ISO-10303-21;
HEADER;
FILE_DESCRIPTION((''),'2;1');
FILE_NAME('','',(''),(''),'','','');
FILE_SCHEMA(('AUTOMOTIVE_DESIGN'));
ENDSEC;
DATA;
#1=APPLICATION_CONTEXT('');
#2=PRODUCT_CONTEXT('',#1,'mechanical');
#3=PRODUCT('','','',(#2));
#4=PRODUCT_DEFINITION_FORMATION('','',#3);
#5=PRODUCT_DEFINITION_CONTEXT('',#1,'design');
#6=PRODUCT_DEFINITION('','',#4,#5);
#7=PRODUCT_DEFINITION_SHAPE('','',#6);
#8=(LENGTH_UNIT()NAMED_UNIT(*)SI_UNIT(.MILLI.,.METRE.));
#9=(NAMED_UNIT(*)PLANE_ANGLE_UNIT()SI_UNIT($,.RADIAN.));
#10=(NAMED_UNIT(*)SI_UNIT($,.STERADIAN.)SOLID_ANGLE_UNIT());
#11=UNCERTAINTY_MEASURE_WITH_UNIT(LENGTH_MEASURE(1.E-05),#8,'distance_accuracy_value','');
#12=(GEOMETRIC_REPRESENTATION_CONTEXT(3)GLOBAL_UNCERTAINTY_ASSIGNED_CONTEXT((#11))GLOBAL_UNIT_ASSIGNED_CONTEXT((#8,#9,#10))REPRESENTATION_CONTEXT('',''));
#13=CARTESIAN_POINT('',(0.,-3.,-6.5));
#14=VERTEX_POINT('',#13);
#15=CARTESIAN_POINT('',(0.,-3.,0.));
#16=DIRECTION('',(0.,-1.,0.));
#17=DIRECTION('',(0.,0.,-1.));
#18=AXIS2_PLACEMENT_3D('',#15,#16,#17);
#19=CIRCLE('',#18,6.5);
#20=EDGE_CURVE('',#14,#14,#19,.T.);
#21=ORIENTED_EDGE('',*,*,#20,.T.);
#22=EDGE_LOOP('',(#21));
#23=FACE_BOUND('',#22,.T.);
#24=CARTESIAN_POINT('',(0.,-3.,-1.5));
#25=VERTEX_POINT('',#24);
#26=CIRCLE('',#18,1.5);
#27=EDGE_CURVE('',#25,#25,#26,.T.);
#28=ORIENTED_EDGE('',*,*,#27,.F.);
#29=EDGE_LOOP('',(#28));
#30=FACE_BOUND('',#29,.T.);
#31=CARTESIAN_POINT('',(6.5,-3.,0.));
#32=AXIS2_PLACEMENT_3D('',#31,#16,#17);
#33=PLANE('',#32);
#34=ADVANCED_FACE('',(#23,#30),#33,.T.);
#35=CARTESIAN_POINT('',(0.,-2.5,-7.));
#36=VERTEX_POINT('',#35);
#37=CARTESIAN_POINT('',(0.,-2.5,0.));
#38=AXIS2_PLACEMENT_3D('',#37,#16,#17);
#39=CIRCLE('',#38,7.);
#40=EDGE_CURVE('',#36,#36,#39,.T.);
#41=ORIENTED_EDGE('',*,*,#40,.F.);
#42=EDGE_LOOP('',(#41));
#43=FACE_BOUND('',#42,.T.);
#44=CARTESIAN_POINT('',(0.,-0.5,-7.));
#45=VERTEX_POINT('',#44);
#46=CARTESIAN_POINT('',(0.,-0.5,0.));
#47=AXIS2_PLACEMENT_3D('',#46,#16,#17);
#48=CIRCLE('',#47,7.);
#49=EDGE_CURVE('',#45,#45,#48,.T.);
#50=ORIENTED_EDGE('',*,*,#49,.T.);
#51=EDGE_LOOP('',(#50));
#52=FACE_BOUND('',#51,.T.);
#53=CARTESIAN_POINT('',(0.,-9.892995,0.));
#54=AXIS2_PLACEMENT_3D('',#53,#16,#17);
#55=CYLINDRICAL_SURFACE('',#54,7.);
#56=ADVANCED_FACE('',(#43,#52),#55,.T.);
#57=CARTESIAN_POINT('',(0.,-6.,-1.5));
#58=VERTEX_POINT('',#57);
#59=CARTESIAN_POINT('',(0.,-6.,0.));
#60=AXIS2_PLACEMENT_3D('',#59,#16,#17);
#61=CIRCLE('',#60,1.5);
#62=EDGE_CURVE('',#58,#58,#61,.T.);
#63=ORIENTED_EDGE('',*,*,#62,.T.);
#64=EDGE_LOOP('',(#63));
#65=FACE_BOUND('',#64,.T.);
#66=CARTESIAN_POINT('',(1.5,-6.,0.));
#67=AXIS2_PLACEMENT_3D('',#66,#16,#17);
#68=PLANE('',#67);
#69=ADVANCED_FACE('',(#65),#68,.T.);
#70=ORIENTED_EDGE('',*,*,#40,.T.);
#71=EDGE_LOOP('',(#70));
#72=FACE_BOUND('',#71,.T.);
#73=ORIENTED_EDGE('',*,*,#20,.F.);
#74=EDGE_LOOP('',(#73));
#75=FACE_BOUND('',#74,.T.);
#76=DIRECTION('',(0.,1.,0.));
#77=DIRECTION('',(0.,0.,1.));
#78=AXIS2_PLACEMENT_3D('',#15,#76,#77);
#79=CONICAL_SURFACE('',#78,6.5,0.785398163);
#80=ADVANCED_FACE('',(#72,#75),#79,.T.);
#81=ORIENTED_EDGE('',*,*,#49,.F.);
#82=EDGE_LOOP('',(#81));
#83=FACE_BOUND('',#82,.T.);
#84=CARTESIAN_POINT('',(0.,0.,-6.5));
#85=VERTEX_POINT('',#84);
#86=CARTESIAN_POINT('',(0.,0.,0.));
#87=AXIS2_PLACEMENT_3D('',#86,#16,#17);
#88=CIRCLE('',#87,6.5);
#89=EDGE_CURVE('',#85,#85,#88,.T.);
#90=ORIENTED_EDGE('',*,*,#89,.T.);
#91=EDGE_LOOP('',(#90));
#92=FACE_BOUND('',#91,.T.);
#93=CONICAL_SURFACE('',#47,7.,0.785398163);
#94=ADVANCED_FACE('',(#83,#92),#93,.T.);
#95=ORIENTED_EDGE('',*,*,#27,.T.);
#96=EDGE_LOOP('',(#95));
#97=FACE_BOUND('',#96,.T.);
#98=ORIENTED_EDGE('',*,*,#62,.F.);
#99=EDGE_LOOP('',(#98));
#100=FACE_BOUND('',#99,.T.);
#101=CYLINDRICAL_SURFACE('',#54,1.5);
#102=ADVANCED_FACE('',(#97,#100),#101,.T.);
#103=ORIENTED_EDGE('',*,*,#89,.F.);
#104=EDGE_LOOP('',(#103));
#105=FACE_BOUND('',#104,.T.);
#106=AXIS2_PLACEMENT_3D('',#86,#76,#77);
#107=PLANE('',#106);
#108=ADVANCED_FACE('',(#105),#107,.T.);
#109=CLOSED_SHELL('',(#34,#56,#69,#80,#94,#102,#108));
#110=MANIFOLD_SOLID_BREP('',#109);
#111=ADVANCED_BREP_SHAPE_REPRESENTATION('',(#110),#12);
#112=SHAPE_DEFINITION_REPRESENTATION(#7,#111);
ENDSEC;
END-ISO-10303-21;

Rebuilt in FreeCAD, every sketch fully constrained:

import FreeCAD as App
import Part
import Sketcher

V = App.Vector
Q = App.Units.Quantity

doc = App.newDocument("Part")
body = doc.addObject("PartDesign::Body", "Body")

# Sketch on XY plane
sketch1 = doc.addObject("Sketcher::SketchObject", "Sketch")
body.addObject(sketch1)
sketch1.AttachmentSupport = (doc.XY_Plane, [""])
sketch1.MapMode = "FlatFace"
sketch1.addGeometry([
    Part.LineSegment(V(6.5, 0, 0), V(0, 0, 0)),  # 0
    Part.LineSegment(V(0, 0, 0), V(0, -6, 0)),  # 1
    Part.LineSegment(V(0, -6, 0), V(1.5, -6, 0)),  # 2
    Part.LineSegment(V(1.5, -6, 0), V(1.5, -3, 0)),  # 3
    Part.LineSegment(V(1.5, -3, 0), V(6.5, -3, 0)),  # 4
    Part.LineSegment(V(6.5, -3, 0), V(7, -2.5, 0)),  # 5
    Part.LineSegment(V(7, -2.5, 0), V(7, -0.5, 0)),  # 6
    Part.LineSegment(V(7, -0.5, 0), V(6.5, 0, 0)),  # 7
], False)
sketch1.addConstraint([
    Sketcher.Constraint("Coincident", 0, 2, 1, 1),
    Sketcher.Constraint("Coincident", 1, 2, 2, 1),
    Sketcher.Constraint("Coincident", 2, 2, 3, 1),
    Sketcher.Constraint("Coincident", 3, 2, 4, 1),
    Sketcher.Constraint("Coincident", 4, 2, 5, 1),
    Sketcher.Constraint("Coincident", 5, 2, 6, 1),
    Sketcher.Constraint("Coincident", 6, 2, 7, 1),
    Sketcher.Constraint("Coincident", 7, 2, 0, 1),
    Sketcher.Constraint("Horizontal", 0),
    Sketcher.Constraint("Vertical", 1),
    Sketcher.Constraint("Horizontal", 2),
    Sketcher.Constraint("Vertical", 3),
    Sketcher.Constraint("Horizontal", 4),
    Sketcher.Constraint("Vertical", 6),
    Sketcher.Constraint("Coincident", 0, 2, -1, 1),
    Sketcher.Constraint("Perpendicular", 5, 7),
    Sketcher.Constraint("Vertical", 4, 2, 7, 2),
    Sketcher.Constraint("Equal", 5, 7),
    Sketcher.Constraint("DistanceX", 4, 1, 4, 2, Q("5 mm")),
    Sketcher.Constraint("DistanceY", 1, 2, 1, 1, Q("6 mm")),
    Sketcher.Constraint("DistanceY", 3, 1, 3, 2, Q("3 mm")),
    Sketcher.Constraint("DistanceY", 6, 1, 6, 2, Q("2 mm")),
    Sketcher.Constraint("DistanceX", 0, 2, 0, 1, Q("6.5 mm")),
])
revolution = doc.addObject("PartDesign::Revolution", "Revolution")
body.addObject(revolution)
revolution.Profile = sketch1
revolution.ReferenceAxis = (sketch1, ["V_Axis"])
revolution.Angle = 360

doc.recompute()
